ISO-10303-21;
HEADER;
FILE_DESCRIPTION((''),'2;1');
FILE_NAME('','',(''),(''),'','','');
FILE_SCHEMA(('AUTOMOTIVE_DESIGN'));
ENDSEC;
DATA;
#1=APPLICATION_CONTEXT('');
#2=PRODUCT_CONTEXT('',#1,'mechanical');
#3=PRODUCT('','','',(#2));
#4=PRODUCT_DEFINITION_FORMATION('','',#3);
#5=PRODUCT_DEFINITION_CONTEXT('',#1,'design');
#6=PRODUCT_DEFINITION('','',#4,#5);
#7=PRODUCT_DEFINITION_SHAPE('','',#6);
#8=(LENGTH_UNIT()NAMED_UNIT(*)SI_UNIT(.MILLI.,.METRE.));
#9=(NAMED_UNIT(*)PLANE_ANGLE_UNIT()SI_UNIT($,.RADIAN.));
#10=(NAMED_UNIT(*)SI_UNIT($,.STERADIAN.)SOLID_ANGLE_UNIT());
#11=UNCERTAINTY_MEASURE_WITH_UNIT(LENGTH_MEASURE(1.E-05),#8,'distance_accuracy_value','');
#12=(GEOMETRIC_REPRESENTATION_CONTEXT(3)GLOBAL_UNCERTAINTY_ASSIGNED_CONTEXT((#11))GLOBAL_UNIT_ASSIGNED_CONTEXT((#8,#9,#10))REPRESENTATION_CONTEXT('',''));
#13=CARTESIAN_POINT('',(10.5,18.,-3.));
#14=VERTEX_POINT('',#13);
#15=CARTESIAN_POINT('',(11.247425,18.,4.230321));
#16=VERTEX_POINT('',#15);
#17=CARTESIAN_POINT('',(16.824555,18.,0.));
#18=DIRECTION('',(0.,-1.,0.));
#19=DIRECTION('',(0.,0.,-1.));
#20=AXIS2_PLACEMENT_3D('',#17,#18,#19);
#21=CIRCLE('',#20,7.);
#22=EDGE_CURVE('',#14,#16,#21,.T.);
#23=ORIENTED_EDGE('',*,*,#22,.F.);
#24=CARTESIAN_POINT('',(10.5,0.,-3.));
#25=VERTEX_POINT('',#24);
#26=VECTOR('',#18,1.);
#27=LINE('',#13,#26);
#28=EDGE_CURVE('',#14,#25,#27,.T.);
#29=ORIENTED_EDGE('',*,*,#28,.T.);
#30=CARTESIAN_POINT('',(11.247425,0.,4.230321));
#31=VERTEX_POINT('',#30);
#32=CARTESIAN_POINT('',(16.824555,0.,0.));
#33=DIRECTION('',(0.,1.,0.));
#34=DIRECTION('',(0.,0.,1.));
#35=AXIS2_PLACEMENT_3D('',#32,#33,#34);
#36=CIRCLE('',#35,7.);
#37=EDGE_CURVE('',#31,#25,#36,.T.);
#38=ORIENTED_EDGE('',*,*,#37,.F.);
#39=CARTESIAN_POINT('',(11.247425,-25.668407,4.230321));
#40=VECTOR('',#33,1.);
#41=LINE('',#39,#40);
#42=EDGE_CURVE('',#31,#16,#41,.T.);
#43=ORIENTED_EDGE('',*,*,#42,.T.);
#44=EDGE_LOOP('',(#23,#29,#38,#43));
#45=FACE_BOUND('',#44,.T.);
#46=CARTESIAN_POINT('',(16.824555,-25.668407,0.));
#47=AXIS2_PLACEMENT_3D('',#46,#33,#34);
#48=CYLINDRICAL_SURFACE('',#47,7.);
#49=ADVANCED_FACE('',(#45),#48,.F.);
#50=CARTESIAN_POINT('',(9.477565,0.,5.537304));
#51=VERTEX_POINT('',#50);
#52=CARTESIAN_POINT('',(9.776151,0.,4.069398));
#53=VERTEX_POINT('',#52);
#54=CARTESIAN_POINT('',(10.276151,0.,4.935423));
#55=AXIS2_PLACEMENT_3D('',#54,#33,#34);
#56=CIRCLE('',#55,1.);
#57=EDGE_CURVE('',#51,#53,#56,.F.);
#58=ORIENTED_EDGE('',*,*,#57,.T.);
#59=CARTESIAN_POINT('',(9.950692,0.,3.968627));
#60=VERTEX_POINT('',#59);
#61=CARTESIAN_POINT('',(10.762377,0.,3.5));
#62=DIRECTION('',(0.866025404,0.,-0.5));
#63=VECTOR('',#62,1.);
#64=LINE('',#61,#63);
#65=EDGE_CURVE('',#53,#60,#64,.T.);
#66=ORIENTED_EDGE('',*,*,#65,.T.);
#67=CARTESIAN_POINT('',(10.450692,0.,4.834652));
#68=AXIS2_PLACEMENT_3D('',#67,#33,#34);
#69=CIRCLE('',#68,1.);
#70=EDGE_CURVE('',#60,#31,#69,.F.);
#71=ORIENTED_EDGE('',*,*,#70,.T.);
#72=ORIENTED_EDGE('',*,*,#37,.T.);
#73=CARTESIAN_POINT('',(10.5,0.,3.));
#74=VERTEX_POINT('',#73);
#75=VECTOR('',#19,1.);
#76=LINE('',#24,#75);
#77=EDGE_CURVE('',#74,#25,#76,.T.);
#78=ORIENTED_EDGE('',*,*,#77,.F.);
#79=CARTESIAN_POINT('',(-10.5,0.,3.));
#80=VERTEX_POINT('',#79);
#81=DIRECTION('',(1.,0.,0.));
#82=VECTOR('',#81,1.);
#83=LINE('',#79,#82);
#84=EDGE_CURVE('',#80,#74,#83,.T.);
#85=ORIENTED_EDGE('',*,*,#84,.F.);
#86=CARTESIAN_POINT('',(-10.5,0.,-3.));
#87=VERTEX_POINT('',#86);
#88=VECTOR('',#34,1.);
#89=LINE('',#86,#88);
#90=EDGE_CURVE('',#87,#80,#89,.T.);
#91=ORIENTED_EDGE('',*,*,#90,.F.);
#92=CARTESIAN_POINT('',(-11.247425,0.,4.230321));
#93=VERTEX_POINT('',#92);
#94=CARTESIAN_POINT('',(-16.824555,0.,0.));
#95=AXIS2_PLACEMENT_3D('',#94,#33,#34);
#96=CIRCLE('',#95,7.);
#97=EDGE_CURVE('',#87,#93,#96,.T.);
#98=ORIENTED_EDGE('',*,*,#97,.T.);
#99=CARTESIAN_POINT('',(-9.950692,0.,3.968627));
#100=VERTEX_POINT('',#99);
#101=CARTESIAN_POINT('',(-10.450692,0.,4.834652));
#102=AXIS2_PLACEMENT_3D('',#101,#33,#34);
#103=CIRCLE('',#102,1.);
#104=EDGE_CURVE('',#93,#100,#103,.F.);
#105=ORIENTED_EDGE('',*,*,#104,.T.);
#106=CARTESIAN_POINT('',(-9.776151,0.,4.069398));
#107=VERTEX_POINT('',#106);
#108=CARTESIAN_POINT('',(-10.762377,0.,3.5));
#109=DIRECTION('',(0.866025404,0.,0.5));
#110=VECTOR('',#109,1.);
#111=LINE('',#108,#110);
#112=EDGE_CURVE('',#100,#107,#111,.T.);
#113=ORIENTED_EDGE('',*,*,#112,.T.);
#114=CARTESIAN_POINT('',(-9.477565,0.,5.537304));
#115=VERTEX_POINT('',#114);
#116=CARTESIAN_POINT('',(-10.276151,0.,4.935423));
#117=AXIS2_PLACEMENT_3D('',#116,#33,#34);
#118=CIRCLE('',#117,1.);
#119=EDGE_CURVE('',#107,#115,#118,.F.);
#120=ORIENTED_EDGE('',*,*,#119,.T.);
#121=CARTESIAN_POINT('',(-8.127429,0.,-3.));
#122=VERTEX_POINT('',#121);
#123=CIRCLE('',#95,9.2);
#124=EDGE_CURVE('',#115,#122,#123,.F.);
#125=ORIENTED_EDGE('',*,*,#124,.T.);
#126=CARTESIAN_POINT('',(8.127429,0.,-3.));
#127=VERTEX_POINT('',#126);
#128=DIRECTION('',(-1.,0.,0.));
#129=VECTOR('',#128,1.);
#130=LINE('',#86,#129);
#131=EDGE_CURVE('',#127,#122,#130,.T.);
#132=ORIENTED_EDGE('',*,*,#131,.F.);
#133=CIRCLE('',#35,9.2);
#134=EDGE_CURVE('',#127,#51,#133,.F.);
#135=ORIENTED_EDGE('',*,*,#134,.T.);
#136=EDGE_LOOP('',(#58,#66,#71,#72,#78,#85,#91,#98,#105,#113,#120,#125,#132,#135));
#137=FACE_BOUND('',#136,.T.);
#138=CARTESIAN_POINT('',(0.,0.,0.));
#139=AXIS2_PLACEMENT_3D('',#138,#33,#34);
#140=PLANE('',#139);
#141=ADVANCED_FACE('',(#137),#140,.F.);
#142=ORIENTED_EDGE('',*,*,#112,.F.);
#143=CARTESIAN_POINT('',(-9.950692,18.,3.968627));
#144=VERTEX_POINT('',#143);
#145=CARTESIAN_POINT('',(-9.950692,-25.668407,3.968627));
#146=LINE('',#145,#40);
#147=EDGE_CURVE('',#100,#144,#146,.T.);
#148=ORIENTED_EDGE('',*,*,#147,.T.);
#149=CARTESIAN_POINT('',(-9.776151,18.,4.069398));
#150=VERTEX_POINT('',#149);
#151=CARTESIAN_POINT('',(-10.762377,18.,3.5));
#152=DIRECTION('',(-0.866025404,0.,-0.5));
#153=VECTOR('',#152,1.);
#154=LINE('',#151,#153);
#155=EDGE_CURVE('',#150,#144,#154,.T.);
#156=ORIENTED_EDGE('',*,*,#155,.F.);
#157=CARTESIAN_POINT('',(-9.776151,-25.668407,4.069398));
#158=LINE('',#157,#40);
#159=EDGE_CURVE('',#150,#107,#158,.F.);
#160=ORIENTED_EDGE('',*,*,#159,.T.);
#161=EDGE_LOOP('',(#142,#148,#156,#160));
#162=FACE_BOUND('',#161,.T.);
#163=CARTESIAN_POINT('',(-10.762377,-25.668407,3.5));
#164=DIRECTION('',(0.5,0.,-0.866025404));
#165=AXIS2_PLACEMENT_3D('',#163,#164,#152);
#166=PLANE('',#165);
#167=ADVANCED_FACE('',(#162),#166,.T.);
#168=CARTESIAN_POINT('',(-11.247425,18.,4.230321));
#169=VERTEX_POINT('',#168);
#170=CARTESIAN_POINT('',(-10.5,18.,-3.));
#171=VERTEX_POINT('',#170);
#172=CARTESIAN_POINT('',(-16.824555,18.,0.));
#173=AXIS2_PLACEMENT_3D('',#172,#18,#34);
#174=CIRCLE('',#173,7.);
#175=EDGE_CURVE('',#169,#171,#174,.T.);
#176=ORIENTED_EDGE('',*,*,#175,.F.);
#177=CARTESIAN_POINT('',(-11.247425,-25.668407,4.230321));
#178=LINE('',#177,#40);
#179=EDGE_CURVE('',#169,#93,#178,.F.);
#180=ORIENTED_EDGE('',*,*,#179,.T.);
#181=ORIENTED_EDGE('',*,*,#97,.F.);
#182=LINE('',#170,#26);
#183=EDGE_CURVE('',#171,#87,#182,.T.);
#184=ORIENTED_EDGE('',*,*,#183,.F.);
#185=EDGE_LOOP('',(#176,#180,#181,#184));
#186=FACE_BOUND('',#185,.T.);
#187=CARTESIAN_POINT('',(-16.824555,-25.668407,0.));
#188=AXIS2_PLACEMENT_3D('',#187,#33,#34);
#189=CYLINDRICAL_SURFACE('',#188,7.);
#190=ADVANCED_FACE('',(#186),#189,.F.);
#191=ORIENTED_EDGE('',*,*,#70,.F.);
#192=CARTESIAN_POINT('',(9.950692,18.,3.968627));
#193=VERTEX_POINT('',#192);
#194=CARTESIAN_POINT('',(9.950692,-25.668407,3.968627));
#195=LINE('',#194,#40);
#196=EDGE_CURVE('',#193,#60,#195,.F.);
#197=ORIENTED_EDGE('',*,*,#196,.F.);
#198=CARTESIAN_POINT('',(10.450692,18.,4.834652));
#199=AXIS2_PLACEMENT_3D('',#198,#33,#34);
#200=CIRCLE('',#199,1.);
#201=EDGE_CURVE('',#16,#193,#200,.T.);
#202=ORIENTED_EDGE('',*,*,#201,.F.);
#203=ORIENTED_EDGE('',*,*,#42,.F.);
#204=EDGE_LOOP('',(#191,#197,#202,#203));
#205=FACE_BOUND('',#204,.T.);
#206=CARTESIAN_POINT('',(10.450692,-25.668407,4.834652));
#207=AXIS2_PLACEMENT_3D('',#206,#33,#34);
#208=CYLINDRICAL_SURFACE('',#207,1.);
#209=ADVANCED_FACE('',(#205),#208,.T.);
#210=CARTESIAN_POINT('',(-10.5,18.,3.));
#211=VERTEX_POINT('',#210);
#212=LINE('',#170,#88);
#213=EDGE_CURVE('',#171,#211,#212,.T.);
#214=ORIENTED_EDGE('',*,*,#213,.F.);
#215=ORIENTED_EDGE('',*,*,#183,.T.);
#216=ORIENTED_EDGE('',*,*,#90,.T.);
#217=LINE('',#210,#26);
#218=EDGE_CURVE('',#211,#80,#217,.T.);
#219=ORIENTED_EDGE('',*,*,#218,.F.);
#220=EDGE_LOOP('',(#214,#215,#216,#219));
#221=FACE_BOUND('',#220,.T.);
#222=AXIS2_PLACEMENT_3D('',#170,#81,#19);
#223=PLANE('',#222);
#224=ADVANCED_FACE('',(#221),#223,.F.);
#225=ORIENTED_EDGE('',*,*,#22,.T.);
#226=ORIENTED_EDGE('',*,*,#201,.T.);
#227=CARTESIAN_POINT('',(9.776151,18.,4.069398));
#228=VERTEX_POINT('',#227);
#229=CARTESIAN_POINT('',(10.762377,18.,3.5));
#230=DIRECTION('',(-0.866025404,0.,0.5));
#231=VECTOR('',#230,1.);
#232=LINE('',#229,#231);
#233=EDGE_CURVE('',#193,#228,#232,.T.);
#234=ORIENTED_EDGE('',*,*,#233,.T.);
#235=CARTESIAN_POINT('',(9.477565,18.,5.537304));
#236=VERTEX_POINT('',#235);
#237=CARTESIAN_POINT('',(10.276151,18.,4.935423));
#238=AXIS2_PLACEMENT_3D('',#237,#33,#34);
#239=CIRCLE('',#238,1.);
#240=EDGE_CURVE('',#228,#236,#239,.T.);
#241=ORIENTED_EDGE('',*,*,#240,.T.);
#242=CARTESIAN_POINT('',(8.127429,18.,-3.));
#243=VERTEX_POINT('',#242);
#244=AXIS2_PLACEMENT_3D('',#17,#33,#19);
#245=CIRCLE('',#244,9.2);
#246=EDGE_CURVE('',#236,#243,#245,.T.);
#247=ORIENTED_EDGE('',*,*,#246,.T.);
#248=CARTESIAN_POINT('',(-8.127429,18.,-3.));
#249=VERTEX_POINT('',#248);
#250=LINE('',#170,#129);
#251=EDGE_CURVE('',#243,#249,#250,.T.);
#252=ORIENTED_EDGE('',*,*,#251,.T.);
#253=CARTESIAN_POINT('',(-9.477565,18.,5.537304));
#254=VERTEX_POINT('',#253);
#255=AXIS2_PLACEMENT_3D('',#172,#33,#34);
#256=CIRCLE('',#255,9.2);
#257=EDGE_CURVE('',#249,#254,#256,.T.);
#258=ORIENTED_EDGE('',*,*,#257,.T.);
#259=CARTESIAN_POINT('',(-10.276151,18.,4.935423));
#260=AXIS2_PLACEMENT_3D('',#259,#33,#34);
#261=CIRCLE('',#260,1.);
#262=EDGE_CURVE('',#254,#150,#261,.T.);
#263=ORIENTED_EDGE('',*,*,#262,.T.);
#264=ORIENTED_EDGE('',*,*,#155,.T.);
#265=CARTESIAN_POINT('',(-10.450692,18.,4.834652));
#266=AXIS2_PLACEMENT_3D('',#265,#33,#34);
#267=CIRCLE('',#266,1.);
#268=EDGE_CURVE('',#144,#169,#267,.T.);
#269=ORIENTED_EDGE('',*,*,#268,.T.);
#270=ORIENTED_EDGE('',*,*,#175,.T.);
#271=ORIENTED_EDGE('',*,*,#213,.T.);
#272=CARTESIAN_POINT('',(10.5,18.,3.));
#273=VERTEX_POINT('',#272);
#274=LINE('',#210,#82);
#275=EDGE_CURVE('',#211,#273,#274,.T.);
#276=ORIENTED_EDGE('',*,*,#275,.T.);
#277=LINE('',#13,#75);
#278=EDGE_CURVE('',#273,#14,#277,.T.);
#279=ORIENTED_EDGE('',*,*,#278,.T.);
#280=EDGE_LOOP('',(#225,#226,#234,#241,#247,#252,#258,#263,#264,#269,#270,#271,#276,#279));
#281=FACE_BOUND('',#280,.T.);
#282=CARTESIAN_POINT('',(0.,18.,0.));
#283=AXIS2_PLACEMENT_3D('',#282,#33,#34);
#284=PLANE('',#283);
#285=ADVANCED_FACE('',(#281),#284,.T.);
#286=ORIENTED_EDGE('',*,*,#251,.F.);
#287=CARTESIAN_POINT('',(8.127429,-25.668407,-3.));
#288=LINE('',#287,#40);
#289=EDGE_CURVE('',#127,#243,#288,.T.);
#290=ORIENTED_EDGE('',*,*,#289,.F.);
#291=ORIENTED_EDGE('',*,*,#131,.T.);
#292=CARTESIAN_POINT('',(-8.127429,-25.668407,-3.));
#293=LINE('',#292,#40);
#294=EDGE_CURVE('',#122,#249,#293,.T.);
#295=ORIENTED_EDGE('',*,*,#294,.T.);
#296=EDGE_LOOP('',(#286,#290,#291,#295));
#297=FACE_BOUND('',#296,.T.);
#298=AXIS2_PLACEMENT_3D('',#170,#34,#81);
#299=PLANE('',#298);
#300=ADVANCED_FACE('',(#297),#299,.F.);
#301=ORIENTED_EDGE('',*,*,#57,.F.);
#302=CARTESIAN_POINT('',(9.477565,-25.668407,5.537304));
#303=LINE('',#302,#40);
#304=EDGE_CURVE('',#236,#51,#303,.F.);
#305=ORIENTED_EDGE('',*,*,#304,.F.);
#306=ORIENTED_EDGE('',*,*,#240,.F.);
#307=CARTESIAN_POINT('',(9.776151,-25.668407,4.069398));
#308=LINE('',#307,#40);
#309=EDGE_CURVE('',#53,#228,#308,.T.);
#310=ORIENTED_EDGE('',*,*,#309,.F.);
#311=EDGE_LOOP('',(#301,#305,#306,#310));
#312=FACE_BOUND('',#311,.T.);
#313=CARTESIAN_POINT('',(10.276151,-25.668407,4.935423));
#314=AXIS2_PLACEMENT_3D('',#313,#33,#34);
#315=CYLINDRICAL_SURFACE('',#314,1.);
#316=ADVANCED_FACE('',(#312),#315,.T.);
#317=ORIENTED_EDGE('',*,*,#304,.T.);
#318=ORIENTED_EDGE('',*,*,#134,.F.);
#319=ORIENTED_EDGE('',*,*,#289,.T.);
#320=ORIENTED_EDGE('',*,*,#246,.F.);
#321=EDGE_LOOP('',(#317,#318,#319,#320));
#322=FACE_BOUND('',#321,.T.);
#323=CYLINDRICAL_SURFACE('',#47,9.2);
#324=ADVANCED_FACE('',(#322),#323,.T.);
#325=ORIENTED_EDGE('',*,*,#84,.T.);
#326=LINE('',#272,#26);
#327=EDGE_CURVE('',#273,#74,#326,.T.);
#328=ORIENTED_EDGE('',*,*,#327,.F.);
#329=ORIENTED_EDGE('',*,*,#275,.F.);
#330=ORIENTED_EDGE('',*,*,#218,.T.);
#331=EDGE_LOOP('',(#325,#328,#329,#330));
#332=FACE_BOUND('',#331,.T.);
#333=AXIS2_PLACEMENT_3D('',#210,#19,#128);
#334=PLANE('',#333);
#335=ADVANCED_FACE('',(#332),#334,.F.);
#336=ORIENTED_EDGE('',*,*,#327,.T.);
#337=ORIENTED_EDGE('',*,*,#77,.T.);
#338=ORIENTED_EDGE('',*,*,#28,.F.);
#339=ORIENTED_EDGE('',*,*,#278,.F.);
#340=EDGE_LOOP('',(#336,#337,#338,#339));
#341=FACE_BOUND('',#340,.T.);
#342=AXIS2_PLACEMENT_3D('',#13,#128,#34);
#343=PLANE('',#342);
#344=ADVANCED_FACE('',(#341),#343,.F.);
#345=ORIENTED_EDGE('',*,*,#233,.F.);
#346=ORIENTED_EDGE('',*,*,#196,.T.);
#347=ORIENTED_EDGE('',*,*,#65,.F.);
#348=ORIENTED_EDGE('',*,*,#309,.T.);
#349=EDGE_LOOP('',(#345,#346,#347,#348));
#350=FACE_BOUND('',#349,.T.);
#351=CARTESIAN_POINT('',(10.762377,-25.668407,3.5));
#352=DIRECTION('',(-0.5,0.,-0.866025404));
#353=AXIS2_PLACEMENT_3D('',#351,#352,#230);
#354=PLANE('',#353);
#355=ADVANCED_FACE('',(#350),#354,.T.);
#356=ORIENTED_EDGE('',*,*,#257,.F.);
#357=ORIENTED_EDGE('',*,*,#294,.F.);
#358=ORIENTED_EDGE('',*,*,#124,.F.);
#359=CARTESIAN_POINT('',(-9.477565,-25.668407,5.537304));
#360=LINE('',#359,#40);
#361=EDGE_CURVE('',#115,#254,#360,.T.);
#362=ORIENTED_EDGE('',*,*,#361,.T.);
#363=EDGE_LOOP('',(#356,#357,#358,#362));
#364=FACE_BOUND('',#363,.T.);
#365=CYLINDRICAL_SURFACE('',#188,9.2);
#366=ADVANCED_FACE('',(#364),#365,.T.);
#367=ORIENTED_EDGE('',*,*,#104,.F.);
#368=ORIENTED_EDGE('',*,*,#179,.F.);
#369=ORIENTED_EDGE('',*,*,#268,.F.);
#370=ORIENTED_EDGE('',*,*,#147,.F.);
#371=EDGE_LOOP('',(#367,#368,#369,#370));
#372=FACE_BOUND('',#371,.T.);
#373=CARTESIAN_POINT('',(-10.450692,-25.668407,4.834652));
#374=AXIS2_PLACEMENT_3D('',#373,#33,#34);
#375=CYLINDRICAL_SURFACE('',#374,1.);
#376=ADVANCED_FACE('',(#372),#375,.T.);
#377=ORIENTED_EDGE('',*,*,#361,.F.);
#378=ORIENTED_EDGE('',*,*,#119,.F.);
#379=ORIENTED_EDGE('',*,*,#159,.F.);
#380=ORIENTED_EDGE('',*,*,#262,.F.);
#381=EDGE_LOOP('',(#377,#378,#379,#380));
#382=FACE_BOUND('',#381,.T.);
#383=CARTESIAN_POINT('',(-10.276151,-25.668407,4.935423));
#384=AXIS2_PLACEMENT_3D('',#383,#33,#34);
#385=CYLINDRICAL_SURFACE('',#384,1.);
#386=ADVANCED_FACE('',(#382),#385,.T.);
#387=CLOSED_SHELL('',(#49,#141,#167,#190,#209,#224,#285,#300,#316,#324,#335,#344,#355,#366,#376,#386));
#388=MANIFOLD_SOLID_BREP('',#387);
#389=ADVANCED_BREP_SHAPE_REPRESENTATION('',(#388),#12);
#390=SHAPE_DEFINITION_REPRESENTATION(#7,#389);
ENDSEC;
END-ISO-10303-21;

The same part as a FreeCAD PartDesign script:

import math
import FreeCAD as App
import Part
import Sketcher
Q = App.Units.Quantity


def edges_at(feature, points):
    """Names of the edges that pass closest to the given points."""
    edges = feature.Shape.Edges
    near = lambda p: min(range(len(edges)), key=lambda i: edges[i].distToShape(Part.Vertex(*p))[0])
    return sorted({f"Edge{near(p) + 1}" for p in points})

doc = App.newDocument("Part")
body = doc.addObject("PartDesign::Body", "Body")

# Sketch on XZ plane
sketch1 = body.newObject("Sketcher::SketchObject", "Sketch")
sketch1.AttachmentSupport = (doc.getObject("XZ_Plane"), [""])
sketch1.MapMode = "FlatFace"
sketch1.addGeometry([
    Part.LineSegment(App.Vector(-10.5, -3, 0), App.Vector(-10.5, 3, 0)),
    Part.LineSegment(App.Vector(-10.5, 3, 0), App.Vector(10.5, 3, 0)),
    Part.LineSegment(App.Vector(10.5, 3, 0), App.Vector(10.5, -3, 0)),
    Part.LineSegment(App.Vector(10.5, -3, 0), App.Vector(-10.5, -3, 0)),
], False)
sketch1.addConstraint([
    Sketcher.Constraint("Coincident", 0, 2, 1, 1),
    Sketcher.Constraint("Coincident", 1, 2, 2, 1),
    Sketcher.Constraint("Coincident", 2, 2, 3, 1),
    Sketcher.Constraint("Coincident", 3, 2, 0, 1),
    Sketcher.Constraint("Vertical", 0),
    Sketcher.Constraint("Horizontal", 1),
    Sketcher.Constraint("Vertical", 2),
    Sketcher.Constraint("Horizontal", 3),
    Sketcher.Constraint("Symmetric", 0, 2, 2, 2, -1, 1),
    Sketcher.Constraint("DistanceX", 1, 1, 1, 2, 21.0),
    Sketcher.Constraint("DistanceY", 0, 1, 0, 2, 6.0),
])
pad1 = body.newObject("PartDesign::Pad", "Pad")
pad1.Profile = sketch1
pad1.Length = 18
pad1.Reversed = True

# Sketch on XZ plane
sketch2 = body.newObject("Sketcher::SketchObject", "Sketch001")
sketch2.AttachmentSupport = (doc.getObject("XZ_Plane"), [""])
sketch2.MapMode = "FlatFace"
sketch2.AttachmentOffset = App.Placement(App.Vector(0, 0, -18), App.Rotation())
sketch2.addGeometry([
    Part.LineSegment(App.Vector(-10.5, -3, 0), App.Vector(-8.127429, -3, 0)),  # 0
    Part.ArcOfCircle(Part.Circle(App.Vector(-16.824555, 0, 0), App.Vector(0, 0, 1), 9.2), math.radians(30), math.radians(340.968559)),  # 1
    Part.LineSegment(App.Vector(-8.857122, 4.6, 0), App.Vector(-10.762377, 3.5, 0)),  # 2
    Part.ArcOfCircle(Part.Circle(App.Vector(-16.824555, 0, 0), App.Vector(0, 0, 1), 7), math.radians(30), math.radians(334.623066)),  # 3
    Part.LineSegment(App.Vector(10.762377, 3.5, 0), App.Vector(8.857122, 4.6, 0)),  # 4
    Part.ArcOfCircle(Part.Circle(App.Vector(16.824555, 0, 0), App.Vector(0, 0, 1), 9.2), math.radians(-160.968559), math.radians(150)),  # 5
    Part.LineSegment(App.Vector(8.127429, -3, 0), App.Vector(10.5, -3, 0)),  # 6
    Part.ArcOfCircle(Part.Circle(App.Vector(16.824555, 0, 0), App.Vector(0, 0, 1), 7), math.radians(-154.623066), math.radians(150)),  # 7
], False)
sketch2.addConstraint([
    Sketcher.Constraint("Coincident", 0, 2, 1, 2),
    Sketcher.Constraint("Coincident", 1, 1, 2, 1),
    Sketcher.Constraint("Coincident", 2, 2, 3, 1),
    Sketcher.Constraint("Coincident", 3, 2, 0, 1),
    Sketcher.Constraint("Coincident", 4, 2, 5, 2),
    Sketcher.Constraint("Coincident", 5, 1, 6, 1),
    Sketcher.Constraint("Coincident", 6, 2, 7, 1),
    Sketcher.Constraint("Coincident", 7, 2, 4, 1),
    Sketcher.Constraint("Horizontal", 0),
    Sketcher.Constraint("Horizontal", 6),
    Sketcher.Constraint("Coincident", 3, 3, 1, 3),
    Sketcher.Constraint("Coincident", 7, 3, 5, 3),
    Sketcher.Constraint("Equal", 1, 5),
    Sketcher.Constraint("Equal", 3, 7),
    Sketcher.Constraint("Symmetric", 1, 3, 5, 3, -1, 1),
    Sketcher.Constraint("Symmetric", 1, 1, 4, 2, -2),
    Sketcher.Constraint("Horizontal", 3, 2, 5, 1),
    Sketcher.Constraint("Horizontal", 2, 2, 7, 2),
    Sketcher.Constraint("Radius", 3, 7.0),
    Sketcher.Constraint("Radius", 1, 9.2),
    Sketcher.Constraint("Angle", 2, Q("-150 deg")),
    Sketcher.Constraint("DistanceY", 0, 2, -1, 1, 3.0),
    Sketcher.Constraint("DistanceY", -1, 1, 1, 1, 4.6),
    Sketcher.Constraint("DistanceX", 3, 2, -1, 1, 10.5),
])
pad2 = body.newObject("PartDesign::Pad", "Pad001")
pad2.Profile = sketch2
pad2.Length = 18
doc.recompute()

fillet = body.newObject("PartDesign::Fillet", "Fillet")
fillet.Base = (pad2, edges_at(pad2, [
    (-10.762, 9, 3.5),
    (-8.857, 9, 4.6),
    (8.857, 9, 4.6),
    (10.762, 9, 3.5),
]))
fillet.Radius = 1

doc.recompute()
